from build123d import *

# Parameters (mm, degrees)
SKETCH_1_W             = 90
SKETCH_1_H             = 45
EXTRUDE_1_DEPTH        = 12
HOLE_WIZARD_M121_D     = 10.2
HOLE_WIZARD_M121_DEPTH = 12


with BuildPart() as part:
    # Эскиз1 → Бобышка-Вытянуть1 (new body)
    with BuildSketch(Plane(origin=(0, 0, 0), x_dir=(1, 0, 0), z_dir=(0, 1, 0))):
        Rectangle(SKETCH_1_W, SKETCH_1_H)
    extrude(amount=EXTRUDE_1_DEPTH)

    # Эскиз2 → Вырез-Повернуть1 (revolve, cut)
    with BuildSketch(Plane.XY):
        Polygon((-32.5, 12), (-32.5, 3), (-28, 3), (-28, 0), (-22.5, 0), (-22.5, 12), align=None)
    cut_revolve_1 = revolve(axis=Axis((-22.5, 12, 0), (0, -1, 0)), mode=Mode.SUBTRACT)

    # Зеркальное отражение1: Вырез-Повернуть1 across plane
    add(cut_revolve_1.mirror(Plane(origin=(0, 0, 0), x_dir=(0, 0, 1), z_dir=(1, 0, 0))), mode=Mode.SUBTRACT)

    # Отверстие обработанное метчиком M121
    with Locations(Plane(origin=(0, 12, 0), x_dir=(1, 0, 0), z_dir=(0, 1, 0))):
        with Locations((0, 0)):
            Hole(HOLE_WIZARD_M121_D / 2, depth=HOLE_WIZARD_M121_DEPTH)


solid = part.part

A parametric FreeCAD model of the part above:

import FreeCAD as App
import Part
import Sketcher

V = App.Vector

doc = App.newDocument("Part")
body = doc.addObject("PartDesign::Body", "Body")

sketch1 = body.newObject("Sketcher::SketchObject", "Sketch")
sketch1.AttachmentSupport = (doc.getObject("XZ_Plane"), [""])
sketch1.MapMode = "FlatFace"
sketch1.addGeometry([
    Part.LineSegment(V(-45, -22.5, 0), V(-45, 22.5, 0)),
    Part.LineSegment(V(-45, 22.5, 0), V(45, 22.5, 0)),
    Part.LineSegment(V(45, 22.5, 0), V(45, -22.5, 0)),
    Part.LineSegment(V(45, -22.5, 0), V(-45, -22.5, 0)),
], False)
sketch1.addConstraint([
    Sketcher.Constraint("Coincident", 0, 2, 1, 1),
    Sketcher.Constraint("Coincident", 1, 2, 2, 1),
    Sketcher.Constraint("Coincident", 2, 2, 3, 1),
    Sketcher.Constraint("Coincident", 3, 2, 0, 1),
    Sketcher.Constraint("Vertical", 0),
    Sketcher.Constraint("Horizontal", 1),
    Sketcher.Constraint("Vertical", 2),
    Sketcher.Constraint("Horizontal", 3),
    Sketcher.Constraint("Symmetric", 0, 2, 2, 2, -1, 1),
    Sketcher.Constraint("DistanceX", 1, 1, 1, 2, 90.0),
    Sketcher.Constraint("DistanceY", 0, 1, 0, 2, 45.0),
])
pad1 = body.newObject("PartDesign::Pad", "Pad")
pad1.Profile = sketch1
pad1.Length = 12
pad1.Reversed = True

sketch2 = body.newObject("Sketcher::SketchObject", "Sketch001")
sketch2.AttachmentSupport = (doc.getObject("XY_Plane"), [""])
sketch2.MapMode = "FlatFace"
sketch2.addGeometry([
    Part.LineSegment(V(-32.5, 12, 0), V(-32.5, 3, 0)),
    Part.LineSegment(V(-32.5, 3, 0), V(-28, 3, 0)),
    Part.LineSegment(V(-28, 3, 0), V(-28, 0, 0)),
    Part.LineSegment(V(-28, 0, 0), V(-22.5, 0, 0)),
    Part.LineSegment(V(-22.5, 0, 0), V(-22.5, 12, 0)),
    Part.LineSegment(V(-22.5, 12, 0), V(-32.5, 12, 0)),
], False)
sketch2.addGeometry(Part.LineSegment(V(-22.5, 12, 0), V(-22.5, 0, 0)), True)
sketch2.addConstraint([
    Sketcher.Constraint("Coincident", 0, 2, 1, 1),
    Sketcher.Constraint("Coincident", 1, 2, 2, 1),
    Sketcher.Constraint("Coincident", 2, 2, 3, 1),
    Sketcher.Constraint("Coincident", 3, 2, 4, 1),
    Sketcher.Constraint("Coincident", 4, 2, 5, 1),
    Sketcher.Constraint("Coincident", 5, 2, 0, 1),
    Sketcher.Constraint("Vertical", 0),
    Sketcher.Constraint("Horizontal", 1),
    Sketcher.Constraint("Vertical", 2),
    Sketcher.Constraint("Horizontal", 3),
    Sketcher.Constraint("Vertical", 4),
    Sketcher.Constraint("Horizontal", 5),
    Sketcher.Constraint("Vertical", 6),
    Sketcher.Constraint("Coincident", 6, 1, 4, 2),
    Sketcher.Constraint("PointOnObject", 2, 2, -1),
    Sketcher.Constraint("PointOnObject", 6, 2, -1),
    Sketcher.Constraint("DistanceX", 5, 2, 5, 1, 10.0),
    Sketcher.Constraint("DistanceY", 0, 2, 0, 1, 9.0),
    Sketcher.Constraint("DistanceY", 2, 2, 2, 1, 3.0),
    Sketcher.Constraint("DistanceX", 1, 1, 1, 2, 4.5),
    Sketcher.Constraint("DistanceX", 1, 2, -1, 1, 28.0),
])
groove = body.newObject("PartDesign::Groove", "Groove")
groove.Profile = sketch2
groove.ReferenceAxis = (sketch2, ["Axis0"])
groove.Angle = 360
doc.recompute()

mirrored = body.newObject("PartDesign::Mirrored", "Mirrored")
mirrored.Originals = [groove]
mirrored.MirrorPlane = (doc.getObject("YZ_Plane"), [""])
body.Tip = mirrored

sketch3 = body.newObject("Sketcher::SketchObject", "Sketch002")
sketch3.AttachmentSupport = (doc.getObject("XZ_Plane"), [""])
sketch3.MapMode = "FlatFace"
sketch3.AttachmentOffset = App.Placement(V(0, 0, -12), App.Rotation())
sketch3.addGeometry(Part.Circle(V(0, 0, 0), V(0, 0, 1), 5.1), False)
sketch3.addConstraint([
    Sketcher.Constraint("Coincident", 0, 3, -1, 1),
    Sketcher.Constraint("Diameter", 0, 10.2),
])
doc.recompute()
hole = body.newObject("PartDesign::Hole", "Hole")
hole.Profile = sketch3
hole.ThreadType = "None"
hole.Diameter = 10.2
hole.DepthType = "Dimension"
hole.Depth = 12
hole.DrillPoint = "Flat"
hole.Reversed = True

doc.recompute()
